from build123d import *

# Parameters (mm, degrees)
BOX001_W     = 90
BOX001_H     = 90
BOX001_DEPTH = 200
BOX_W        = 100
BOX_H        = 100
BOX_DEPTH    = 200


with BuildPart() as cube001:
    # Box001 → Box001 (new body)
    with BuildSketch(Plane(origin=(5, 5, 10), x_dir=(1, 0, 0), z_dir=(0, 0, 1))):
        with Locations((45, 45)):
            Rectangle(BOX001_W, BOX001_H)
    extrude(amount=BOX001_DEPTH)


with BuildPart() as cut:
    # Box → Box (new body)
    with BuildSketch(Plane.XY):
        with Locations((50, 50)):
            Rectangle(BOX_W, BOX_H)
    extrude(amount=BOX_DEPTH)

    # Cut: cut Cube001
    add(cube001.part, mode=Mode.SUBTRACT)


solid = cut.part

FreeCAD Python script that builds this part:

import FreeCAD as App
import Part
import Sketcher

doc = App.newDocument("Part")
body = doc.addObject("PartDesign::Body", "Body")

sketch1 = doc.addObject("Sketcher::SketchObject", "Sketch")
body.addObject(sketch1)
sketch1.AttachmentSupport = (doc.XY_Plane, [""])
sketch1.MapMode = "FlatFace"
sketch1.AttachmentOffset = App.Placement(App.Vector(0, 0, 10), App.Rotation())
sketch1.addGeometry([
    Part.LineSegment(App.Vector(5, 95, 0), App.Vector(5, 5, 0)),
    Part.LineSegment(App.Vector(5, 5, 0), App.Vector(95, 5, 0)),
    Part.LineSegment(App.Vector(95, 5, 0), App.Vector(95, 95, 0)),
    Part.LineSegment(App.Vector(95, 95, 0), App.Vector(5, 95, 0)),
], False)
sketch1.addConstraint([
    Sketcher.Constraint("Coincident", 0, 2, 1, 1),
    Sketcher.Constraint("Coincident", 1, 2, 2, 1),
    Sketcher.Constraint("Coincident", 2, 2, 3, 1),
    Sketcher.Constraint("Coincident", 3, 2, 0, 1),
    Sketcher.Constraint("Vertical", 0),
    Sketcher.Constraint("Horizontal", 1),
    Sketcher.Constraint("Vertical", 2),
    Sketcher.Constraint("Horizontal", 3),
    Sketcher.Constraint("Equal", 3, 0),
    Sketcher.Constraint("DistanceX", 1, 1, 1, 2, 90.0),
    Sketcher.Constraint("DistanceX", -1, 1, 0, 2, 5.0),
    Sketcher.Constraint("DistanceY", -1, 1, 0, 2, 5.0),
])
pad1 = doc.addObject("PartDesign::Pad", "Pad")
body.addObject(pad1)
pad1.Profile = sketch1
pad1.Length = 200
body2 = doc.addObject("PartDesign::Body", "Body001")

sketch2 = doc.addObject("Sketcher::SketchObject", "Sketch001")
body2.addObject(sketch2)
sketch2.AttachmentSupport = (doc.getObject("XY_Plane001"), [""])
sketch2.MapMode = "FlatFace"
sketch2.addGeometry([
    Part.LineSegment(App.Vector(0, 100, 0), App.Vector(0, 0, 0)),
    Part.LineSegment(App.Vector(0, 0, 0), App.Vector(100, 0, 0)),
    Part.LineSegment(App.Vector(100, 0, 0), App.Vector(100, 100, 0)),
    Part.LineSegment(App.Vector(100, 100, 0), App.Vector(0, 100, 0)),
], False)
sketch2.addConstraint([
    Sketcher.Constraint("Coincident", 0, 2, 1, 1),
    Sketcher.Constraint("Coincident", 1, 2, 2, 1),
    Sketcher.Constraint("Coincident", 2, 2, 3, 1),
    Sketcher.Constraint("Coincident", 3, 2, 0, 1),
    Sketcher.Constraint("Vertical", 0),
    Sketcher.Constraint("Horizontal", 1),
    Sketcher.Constraint("Vertical", 2),
    Sketcher.Constraint("Horizontal", 3),
    Sketcher.Constraint("Coincident", 0, 2, -1, 1),
    Sketcher.Constraint("Equal", 3, 0),
    Sketcher.Constraint("DistanceX", 1, 1, 1, 2, 100.0),
])
pad2 = doc.addObject("PartDesign::Pad", "Pad001")
body2.addObject(pad2)
pad2.Profile = sketch2
pad2.Length = 200
doc.recompute()

boolean = doc.addObject("PartDesign::Boolean", "Boolean")
body2.addObject(boolean)
boolean.Type = "Cut"
boolean.addObjects([body])

doc.recompute()
